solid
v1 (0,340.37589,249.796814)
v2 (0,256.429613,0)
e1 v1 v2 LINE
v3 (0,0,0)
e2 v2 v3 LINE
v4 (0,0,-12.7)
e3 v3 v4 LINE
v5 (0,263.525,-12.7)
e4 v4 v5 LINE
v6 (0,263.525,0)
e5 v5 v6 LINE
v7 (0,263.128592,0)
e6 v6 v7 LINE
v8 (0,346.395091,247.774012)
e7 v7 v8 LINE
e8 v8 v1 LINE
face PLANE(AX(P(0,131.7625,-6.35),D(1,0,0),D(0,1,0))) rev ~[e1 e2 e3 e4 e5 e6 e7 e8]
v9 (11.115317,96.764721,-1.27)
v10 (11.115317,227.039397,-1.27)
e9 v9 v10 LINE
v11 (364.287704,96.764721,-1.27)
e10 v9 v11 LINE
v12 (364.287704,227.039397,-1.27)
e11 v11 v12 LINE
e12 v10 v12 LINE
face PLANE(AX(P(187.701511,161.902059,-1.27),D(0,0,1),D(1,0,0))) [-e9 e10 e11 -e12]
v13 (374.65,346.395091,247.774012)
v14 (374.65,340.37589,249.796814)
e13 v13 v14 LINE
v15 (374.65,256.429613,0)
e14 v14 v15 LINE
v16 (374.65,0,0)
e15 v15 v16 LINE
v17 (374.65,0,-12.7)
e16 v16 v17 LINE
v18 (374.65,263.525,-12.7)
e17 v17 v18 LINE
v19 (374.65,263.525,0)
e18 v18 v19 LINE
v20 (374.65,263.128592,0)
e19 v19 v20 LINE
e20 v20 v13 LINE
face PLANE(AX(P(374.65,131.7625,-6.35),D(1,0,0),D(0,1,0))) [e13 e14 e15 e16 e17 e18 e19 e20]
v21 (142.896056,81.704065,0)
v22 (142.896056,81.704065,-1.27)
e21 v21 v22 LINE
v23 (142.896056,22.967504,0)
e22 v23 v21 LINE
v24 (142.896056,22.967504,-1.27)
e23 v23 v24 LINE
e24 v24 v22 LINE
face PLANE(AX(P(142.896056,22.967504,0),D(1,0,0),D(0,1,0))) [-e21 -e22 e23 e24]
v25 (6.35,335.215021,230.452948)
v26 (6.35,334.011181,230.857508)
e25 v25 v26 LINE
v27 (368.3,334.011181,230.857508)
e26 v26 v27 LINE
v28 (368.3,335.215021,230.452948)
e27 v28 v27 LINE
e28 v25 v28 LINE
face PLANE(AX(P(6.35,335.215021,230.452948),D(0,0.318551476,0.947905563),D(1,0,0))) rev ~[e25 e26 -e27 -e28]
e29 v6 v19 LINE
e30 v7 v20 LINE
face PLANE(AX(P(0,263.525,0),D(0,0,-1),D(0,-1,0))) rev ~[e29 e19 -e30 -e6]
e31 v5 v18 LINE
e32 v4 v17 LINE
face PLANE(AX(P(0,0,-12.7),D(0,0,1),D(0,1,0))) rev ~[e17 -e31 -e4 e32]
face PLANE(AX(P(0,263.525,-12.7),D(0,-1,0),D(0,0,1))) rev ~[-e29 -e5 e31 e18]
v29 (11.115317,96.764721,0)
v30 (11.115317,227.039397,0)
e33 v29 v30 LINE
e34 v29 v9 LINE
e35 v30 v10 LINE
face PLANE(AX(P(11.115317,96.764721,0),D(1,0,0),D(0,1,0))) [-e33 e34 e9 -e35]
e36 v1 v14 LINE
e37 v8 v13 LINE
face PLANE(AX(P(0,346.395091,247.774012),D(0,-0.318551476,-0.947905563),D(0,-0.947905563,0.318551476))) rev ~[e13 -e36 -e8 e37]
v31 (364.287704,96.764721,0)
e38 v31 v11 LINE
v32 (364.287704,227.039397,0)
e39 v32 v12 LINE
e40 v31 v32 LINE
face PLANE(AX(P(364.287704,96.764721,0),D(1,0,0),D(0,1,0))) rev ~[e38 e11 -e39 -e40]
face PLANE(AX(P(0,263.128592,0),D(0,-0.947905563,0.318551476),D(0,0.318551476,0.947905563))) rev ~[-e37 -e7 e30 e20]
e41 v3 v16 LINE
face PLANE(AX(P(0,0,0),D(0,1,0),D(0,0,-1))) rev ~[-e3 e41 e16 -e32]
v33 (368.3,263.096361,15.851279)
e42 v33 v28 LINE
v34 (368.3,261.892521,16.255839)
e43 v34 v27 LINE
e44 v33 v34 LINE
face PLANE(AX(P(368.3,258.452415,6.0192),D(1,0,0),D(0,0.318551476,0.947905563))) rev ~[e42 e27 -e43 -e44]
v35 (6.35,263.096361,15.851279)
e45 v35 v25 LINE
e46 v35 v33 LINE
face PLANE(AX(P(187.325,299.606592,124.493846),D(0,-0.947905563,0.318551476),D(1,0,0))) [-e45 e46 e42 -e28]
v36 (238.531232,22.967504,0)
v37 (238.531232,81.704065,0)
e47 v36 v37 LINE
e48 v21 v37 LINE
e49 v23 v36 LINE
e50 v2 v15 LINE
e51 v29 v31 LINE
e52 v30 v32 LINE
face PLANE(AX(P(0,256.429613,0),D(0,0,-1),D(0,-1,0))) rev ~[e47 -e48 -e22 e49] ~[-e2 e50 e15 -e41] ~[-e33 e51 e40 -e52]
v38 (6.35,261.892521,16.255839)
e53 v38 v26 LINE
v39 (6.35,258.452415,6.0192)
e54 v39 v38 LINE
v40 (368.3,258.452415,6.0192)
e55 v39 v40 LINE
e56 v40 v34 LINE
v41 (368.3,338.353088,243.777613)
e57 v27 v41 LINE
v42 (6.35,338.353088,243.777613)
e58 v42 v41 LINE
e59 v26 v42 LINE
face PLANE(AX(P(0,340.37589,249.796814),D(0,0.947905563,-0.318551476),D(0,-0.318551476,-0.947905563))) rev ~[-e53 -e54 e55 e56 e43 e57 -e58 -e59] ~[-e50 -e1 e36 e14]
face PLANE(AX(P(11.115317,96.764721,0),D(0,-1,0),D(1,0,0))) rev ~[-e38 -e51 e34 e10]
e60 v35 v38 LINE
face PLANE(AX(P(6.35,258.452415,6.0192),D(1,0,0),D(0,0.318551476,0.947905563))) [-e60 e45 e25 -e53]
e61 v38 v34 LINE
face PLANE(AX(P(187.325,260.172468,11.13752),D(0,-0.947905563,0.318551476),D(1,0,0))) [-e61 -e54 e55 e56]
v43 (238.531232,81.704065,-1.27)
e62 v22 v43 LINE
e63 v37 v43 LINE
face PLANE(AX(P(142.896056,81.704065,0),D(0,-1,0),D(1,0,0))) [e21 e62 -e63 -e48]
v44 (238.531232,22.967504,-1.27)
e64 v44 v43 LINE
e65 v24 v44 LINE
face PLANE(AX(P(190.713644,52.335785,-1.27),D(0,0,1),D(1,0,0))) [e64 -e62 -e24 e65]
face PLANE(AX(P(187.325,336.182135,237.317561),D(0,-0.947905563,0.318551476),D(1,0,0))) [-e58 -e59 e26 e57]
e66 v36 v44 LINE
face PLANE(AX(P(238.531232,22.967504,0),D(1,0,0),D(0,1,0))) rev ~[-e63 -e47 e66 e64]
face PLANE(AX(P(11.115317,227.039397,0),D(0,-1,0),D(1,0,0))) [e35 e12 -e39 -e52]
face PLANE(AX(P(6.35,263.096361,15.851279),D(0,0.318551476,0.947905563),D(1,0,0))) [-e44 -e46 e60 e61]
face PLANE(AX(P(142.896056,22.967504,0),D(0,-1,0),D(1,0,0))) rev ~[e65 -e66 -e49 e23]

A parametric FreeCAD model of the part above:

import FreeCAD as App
import Part
import Sketcher
Q = App.Units.Quantity

doc = App.newDocument("Part")
body = doc.addObject("PartDesign::Body", "Body")

sketch1 = doc.addObject("Sketcher::SketchObject", "Sketch")
body.addObject(sketch1)
sketch1.AttachmentSupport = (doc.YZ_Plane, [""])
sketch1.MapMode = "FlatFace"
sketch1.addGeometry([
    Part.LineSegment(App.Vector(0, 0, 0), App.Vector(0, -12.7, 0)),
    Part.LineSegment(App.Vector(0, -12.7, 0), App.Vector(263.52, -12.7, 0)),
    Part.LineSegment(App.Vector(263.52, -12.7, 0), App.Vector(263.52, 0, 0)),
    Part.LineSegment(App.Vector(263.52, 0, 0), App.Vector(263.13, 0, 0)),
    Part.LineSegment(App.Vector(263.13, 0, 0), App.Vector(346.4, 247.77, 0)),
    Part.LineSegment(App.Vector(346.4, 247.77, 0), App.Vector(340.38, 249.8, 0)),
    Part.LineSegment(App.Vector(340.38, 249.8, 0), App.Vector(256.43, 0, 0)),
    Part.LineSegment(App.Vector(256.43, 0, 0), App.Vector(0, 0, 0)),
], False)
sketch1.addConstraint([
    Sketcher.Constraint("Coincident", 0, 2, 1, 1),
    Sketcher.Constraint("Coincident", 1, 2, 2, 1),
    Sketcher.Constraint("Coincident", 2, 2, 3, 1),
    Sketcher.Constraint("Coincident", 3, 2, 4, 1),
    Sketcher.Constraint("Coincident", 4, 2, 5, 1),
    Sketcher.Constraint("Coincident", 5, 2, 6, 1),
    Sketcher.Constraint("Coincident", 6, 2, 7, 1),
    Sketcher.Constraint("Coincident", 7, 2, 0, 1),
    Sketcher.Constraint("Vertical", 0),
    Sketcher.Constraint("Horizontal", 1),
    Sketcher.Constraint("Vertical", 2),
    Sketcher.Constraint("Horizontal", 3),
    Sketcher.Constraint("Horizontal", 7),
    Sketcher.Constraint("Coincident", 7, 2, -1, 1),
    Sketcher.Constraint("PointOnObject", 2, 2, -1),
    Sketcher.Constraint("Perpendicular", 4, 5),
    Sketcher.Constraint("Perpendicular", 5, 6),
    Sketcher.Constraint("DistanceY", 0, 2, 0, 1, Q("0.5 in")),
    Sketcher.Constraint("Distance", 5, Q("0.25 in")),
    Sketcher.Constraint("DistanceX", 1, 1, 1, 2, Q("10.375 in")),
    Sketcher.Constraint("Distance", 6, Q("10.375 in")),
    Sketcher.Constraint("DistanceX", 3, 2, 4, 2, 83.266499),
    Sketcher.Constraint("DistanceX", 3, 2, 3, 1, 0.396408),
])
pad1 = doc.addObject("PartDesign::Pad", "Pad")
body.addObject(pad1)
pad1.Profile = sketch1
pad1.Length = Q("14.75 in")

sketch2 = doc.addObject("Sketcher::SketchObject", "Sketch001")
body.addObject(sketch2)
sketch2.Placement = App.Placement(App.Vector(0, 230.408407, -77.430644), App.Rotation(App.Vector(1, 0, 0), App.Vector(0, 0.318551476, 0.947905563), App.Vector(0, -0.947905563, 0.318551476), "ZXY"))
sketch2.addGeometry([
    Part.LineSegment(App.Vector(6, 339, 0), App.Vector(6, 88, 0)),
    Part.LineSegment(App.Vector(6, 88, 0), App.Vector(368, 88, 0)),
    Part.LineSegment(App.Vector(368, 88, 0), App.Vector(368, 339, 0)),
    Part.LineSegment(App.Vector(368, 339, 0), App.Vector(6, 339, 0)),
], False)
sketch2.addConstraint([
    Sketcher.Constraint("Coincident", 0, 2, 1, 1),
    Sketcher.Constraint("Coincident", 1, 2, 2, 1),
    Sketcher.Constraint("Coincident", 2, 2, 3, 1),
    Sketcher.Constraint("Coincident", 3, 2, 0, 1),
    Sketcher.Constraint("Vertical", 0),
    Sketcher.Constraint("Horizontal", 1),
    Sketcher.Constraint("Vertical", 2),
    Sketcher.Constraint("Horizontal", 3),
    Sketcher.Constraint("DistanceX", 1, 1, 1, 2, Q("14.25 in")),
    Sketcher.Constraint("DistanceX", -1, 1, 1, 2, Q("14.5 in")),
    Sketcher.Constraint("DistanceY", 0, 2, 0, 1, Q("9.875 in")),
    Sketcher.Constraint("DistanceY", -1, 1, 0, 2, 88.036032),
])
pocket1 = doc.addObject("PartDesign::Pocket", "Pocket")
body.addObject(pocket1)
pocket1.Profile = sketch2
pocket1.Length = Q("0.05 in")

sketch3 = doc.addObject("Sketcher::SketchObject", "Sketch002")
body.addObject(sketch3)
sketch3.AttachmentSupport = (doc.XY_Plane, [""])
sketch3.MapMode = "FlatFace"
sketch3.addGeometry([
    Part.LineSegment(App.Vector(11, 227, 0), App.Vector(11, 97, 0)),
    Part.LineSegment(App.Vector(11, 97, 0), App.Vector(364, 97, 0)),
    Part.LineSegment(App.Vector(364, 97, 0), App.Vector(364, 227, 0)),
    Part.LineSegment(App.Vector(364, 227, 0), App.Vector(11, 227, 0)),
    Part.LineSegment(App.Vector(143, 82, 0), App.Vector(143, 23, 0)),
    Part.LineSegment(App.Vector(143, 23, 0), App.Vector(239, 23, 0)),
    Part.LineSegment(App.Vector(239, 23, 0), App.Vector(239, 82, 0)),
    Part.LineSegment(App.Vector(239, 82, 0), App.Vector(143, 82, 0)),
], False)
sketch3.addConstraint([
    Sketcher.Constraint("Coincident", 0, 2, 1, 1),
    Sketcher.Constraint("Coincident", 1, 2, 2, 1),
    Sketcher.Constraint("Coincident", 2, 2, 3, 1),
    Sketcher.Constraint("Coincident", 3, 2, 0, 1),
    Sketcher.Constraint("Coincident", 4, 2, 5, 1),
    Sketcher.Constraint("Coincident", 5, 2, 6, 1),
    Sketcher.Constraint("Coincident", 6, 2, 7, 1),
    Sketcher.Constraint("Coincident", 7, 2, 4, 1),
    Sketcher.Constraint("Vertical", 0),
    Sketcher.Constraint("Horizontal", 1),
    Sketcher.Constraint("Vertical", 2),
    Sketcher.Constraint("Horizontal", 3),
    Sketcher.Constraint("Vertical", 4),
    Sketcher.Constraint("Horizontal", 5),
    Sketcher.Constraint("Vertical", 6),
    Sketcher.Constraint("Horizontal", 7),
    Sketcher.Constraint("DistanceY", 4, 2, 4, 1, 58.736561),
    Sketcher.Constraint("DistanceX", 1, 1, 1, 2, 353.172387),
    Sketcher.Constraint("DistanceX", 5, 1, 5, 2, 95.635176),
    Sketcher.Constraint("DistanceY", 0, 2, 0, 1, 130.274676),
    Sketcher.Constraint("DistanceY", -1, 1, 0, 2, 96.764721),
    Sketcher.Constraint("DistanceX", -1, 1, 5, 2, 238.531232),
    Sketcher.Constraint("DistanceX", 0, 2, 4, 2, 131.780739),
    Sketcher.Constraint("DistanceY", 6, 2, 2, 2, 145.335332),
])
pocket2 = doc.addObject("PartDesign::Pocket", "Pocket001")
body.addObject(pocket2)
pocket2.Profile = sketch3
pocket2.Length = Q("0.05 in")

sketch4 = doc.addObject("Sketcher::SketchObject", "Sketch003")
body.addObject(sketch4)
sketch4.Placement = App.Placement(App.Vector(0, 231.612247, -77.835204), App.Rotation(App.Vector(1, 0, 0), App.Vector(0, 0.318551476, 0.947905563), App.Vector(0, -0.947905563, 0.318551476), "ZXY"))
sketch4.addGeometry([
    Part.LineSegment(App.Vector(6, 339, 0), App.Vector(6, 325, 0)),
    Part.LineSegment(App.Vector(6, 325, 0), App.Vector(368, 325, 0)),
    Part.LineSegment(App.Vector(368, 325, 0), App.Vector(368, 339, 0)),
    Part.LineSegment(App.Vector(368, 339, 0), App.Vector(6, 339, 0)),
    Part.LineSegment(App.Vector(6, 99, 0), App.Vector(6, 88, 0)),
    Part.LineSegment(App.Vector(6, 88, 0), App.Vector(368, 88, 0)),
    Part.LineSegment(App.Vector(368, 88, 0), App.Vector(368, 99, 0)),
    Part.LineSegment(App.Vector(368, 99, 0), App.Vector(6, 99, 0)),
], False)
sketch4.addConstraint([
    Sketcher.Constraint("Coincident", 0, 2, 1, 1),
    Sketcher.Constraint("Coincident", 1, 2, 2, 1),
    Sketcher.Constraint("Coincident", 2, 2, 3, 1),
    Sketcher.Constraint("Coincident", 3, 2, 0, 1),
    Sketcher.Constraint("Coincident", 4, 2, 5, 1),
    Sketcher.Constraint("Coincident", 5, 2, 6, 1),
    Sketcher.Constraint("Coincident", 6, 2, 7, 1),
    Sketcher.Constraint("Coincident", 7, 2, 4, 1),
    Sketcher.Constraint("Vertical", 0),
    Sketcher.Constraint("Horizontal", 1),
    Sketcher.Constraint("Vertical", 2),
    Sketcher.Constraint("Horizontal", 3),
    Sketcher.Constraint("Vertical", 4),
    Sketcher.Constraint("Horizontal", 5),
    Sketcher.Constraint("Vertical", 6),
    Sketcher.Constraint("Horizontal", 7),
    Sketcher.Constraint("Vertical", 3, 2, 4, 2),
    Sketcher.Constraint("Vertical", 2, 2, 5, 2),
    Sketcher.Constraint("DistanceX", 1, 1, 1, 2, Q("14.25 in")),
    Sketcher.Constraint("DistanceX", -1, 1, 1, 2, Q("14.5 in")),
    Sketcher.Constraint("DistanceY", 4, 2, 3, 2, Q("9.875 in")),
    Sketcher.Constraint("DistanceY", 0, 2, 0, 1, 13.63016),
    Sketcher.Constraint("DistanceY", 4, 2, 4, 1, 10.799218),
    Sketcher.Constraint("DistanceY", -1, 1, 0, 2, 325.230871),
])
pad2 = doc.addObject("PartDesign::Pad", "Pad001")
body.addObject(pad2)
pad2.Profile = sketch4
pad2.Length = Q("0.05 in")

doc.recompute()
